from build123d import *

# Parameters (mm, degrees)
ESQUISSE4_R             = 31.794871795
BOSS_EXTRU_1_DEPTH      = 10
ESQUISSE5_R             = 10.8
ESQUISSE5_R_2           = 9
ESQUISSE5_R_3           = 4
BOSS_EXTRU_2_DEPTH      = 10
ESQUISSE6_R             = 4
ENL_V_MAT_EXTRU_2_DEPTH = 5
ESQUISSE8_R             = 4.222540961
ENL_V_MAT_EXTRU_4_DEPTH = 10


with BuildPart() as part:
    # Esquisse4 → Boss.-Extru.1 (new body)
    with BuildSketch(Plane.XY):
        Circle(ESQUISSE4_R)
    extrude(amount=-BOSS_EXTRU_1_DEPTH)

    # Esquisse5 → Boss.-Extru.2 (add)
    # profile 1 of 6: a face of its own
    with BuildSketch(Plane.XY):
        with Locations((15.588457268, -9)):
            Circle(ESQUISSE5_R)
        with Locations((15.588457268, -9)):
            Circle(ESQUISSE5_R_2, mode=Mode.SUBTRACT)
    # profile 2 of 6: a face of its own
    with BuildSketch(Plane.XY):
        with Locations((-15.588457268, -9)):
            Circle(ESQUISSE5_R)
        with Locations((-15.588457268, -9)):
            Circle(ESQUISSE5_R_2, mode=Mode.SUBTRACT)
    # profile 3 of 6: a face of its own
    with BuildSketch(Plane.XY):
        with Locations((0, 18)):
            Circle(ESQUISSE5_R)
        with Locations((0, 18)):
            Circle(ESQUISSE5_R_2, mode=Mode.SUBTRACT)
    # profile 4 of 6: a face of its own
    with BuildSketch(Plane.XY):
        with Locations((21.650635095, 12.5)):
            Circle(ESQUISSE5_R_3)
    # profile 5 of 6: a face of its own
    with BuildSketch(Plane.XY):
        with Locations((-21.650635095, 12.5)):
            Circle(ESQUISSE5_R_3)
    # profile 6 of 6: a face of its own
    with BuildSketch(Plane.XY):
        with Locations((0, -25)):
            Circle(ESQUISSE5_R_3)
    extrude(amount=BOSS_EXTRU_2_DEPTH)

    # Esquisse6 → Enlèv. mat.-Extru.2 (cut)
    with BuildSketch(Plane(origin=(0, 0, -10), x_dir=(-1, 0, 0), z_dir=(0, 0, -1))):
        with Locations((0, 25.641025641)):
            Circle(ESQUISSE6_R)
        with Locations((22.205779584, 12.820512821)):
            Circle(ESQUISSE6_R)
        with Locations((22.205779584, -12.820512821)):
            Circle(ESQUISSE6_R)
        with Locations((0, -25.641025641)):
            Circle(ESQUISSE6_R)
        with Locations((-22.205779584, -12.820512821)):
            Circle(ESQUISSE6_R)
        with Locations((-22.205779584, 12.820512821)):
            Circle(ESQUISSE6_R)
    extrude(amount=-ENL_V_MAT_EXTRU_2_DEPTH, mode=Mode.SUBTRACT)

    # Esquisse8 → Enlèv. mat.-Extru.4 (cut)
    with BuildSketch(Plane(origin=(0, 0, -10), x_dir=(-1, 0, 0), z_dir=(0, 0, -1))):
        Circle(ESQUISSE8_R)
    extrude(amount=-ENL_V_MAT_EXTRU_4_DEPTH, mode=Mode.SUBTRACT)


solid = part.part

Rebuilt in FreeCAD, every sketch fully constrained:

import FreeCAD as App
import Part
import Sketcher
from FreeCAD import Vector

doc = App.newDocument("Part")
body = doc.addObject("PartDesign::Body", "Body")

# Sketch on XY plane
sketch1 = doc.addObject("Sketcher::SketchObject", "Sketch")
body.addObject(sketch1)
sketch1.AttachmentSupport = (doc.XY_Plane, [""])
sketch1.MapMode = "FlatFace"
sketch1.addGeometry(Part.Circle(Vector(0, 0, 0), Vector(0, 0, 1), 32), False)
sketch1.addConstraint([
    Sketcher.Constraint("Coincident", 0, 3, -1, 1),
    Sketcher.Constraint("Diameter", 0, 63.589744),
])
pad1 = doc.addObject("PartDesign::Pad", "Pad")
body.addObject(pad1)
pad1.Profile = sketch1
pad1.Length = 10
pad1.Reversed = True

# Sketch on XY plane
sketch2 = doc.addObject("Sketcher::SketchObject", "Sketch001")
body.addObject(sketch2)
sketch2.AttachmentSupport = (doc.XY_Plane, [""])
sketch2.MapMode = "FlatFace"
sketch2.addGeometry([
    Part.Circle(Vector(15.6, -9, 0), Vector(0, 0, 1), 10.8),  # 0
    Part.Circle(Vector(15.6, -9, 0), Vector(0, 0, 1), 9),  # 1
    Part.Circle(Vector(-15.6, -9, 0), Vector(0, 0, 1), 10.8),  # 2
    Part.Circle(Vector(-15.6, -9, 0), Vector(0, 0, 1), 9),  # 3
    Part.Circle(Vector(0, 18, 0), Vector(0, 0, 1), 10.8),  # 4
    Part.Circle(Vector(0, 18, 0), Vector(0, 0, 1), 9),  # 5
    Part.Circle(Vector(21.7, 12.5, 0), Vector(0, 0, 1), 4),  # 6
    Part.Circle(Vector(-21.7, 12.5, 0), Vector(0, 0, 1), 4),  # 7
    Part.Circle(Vector(0, -25, 0), Vector(0, 0, 1), 4),  # 8
], False)
sketch2.addConstraint([
    Sketcher.Constraint("Coincident", 1, 3, 0, 3),
    Sketcher.Constraint("Coincident", 3, 3, 2, 3),
    Sketcher.Constraint("Coincident", 5, 3, 4, 3),
    Sketcher.Constraint("Equal", 0, 2),
    Sketcher.Constraint("Equal", 1, 3),
    Sketcher.Constraint("Equal", 2, 4),
    Sketcher.Constraint("Equal", 3, 5),
    Sketcher.Constraint("Equal", 6, 7),
    Sketcher.Constraint("Equal", 7, 8),
    Sketcher.Constraint("Symmetric", 0, 3, 2, 3, -2),
    Sketcher.Constraint("Symmetric", 6, 3, 7, 3, -2),
    Sketcher.Constraint("PointOnObject", 4, 3, -2),
    Sketcher.Constraint("PointOnObject", 8, 3, -2),
    Sketcher.Constraint("Diameter", 1, 18.0),
    Sketcher.Constraint("Diameter", 6, 8.0),
    Sketcher.Constraint("Diameter", 0, 21.6),
    Sketcher.Constraint("DistanceY", 0, 3, -1, 1, 9.0),
    Sketcher.Constraint("DistanceY", -1, 1, 4, 3, 18.0),
    Sketcher.Constraint("DistanceY", 8, 3, -1, 1, 25.0),
    Sketcher.Constraint("DistanceY", -1, 1, 6, 3, 12.5),
    Sketcher.Constraint("DistanceX", -1, 1, 0, 3, 15.588457),
    Sketcher.Constraint("DistanceX", -1, 1, 6, 3, 21.650635),
])
pad2 = doc.addObject("PartDesign::Pad", "Pad001")
body.addObject(pad2)
pad2.Profile = sketch2
pad2.Length = 10

# Sketch on XY plane
sketch3 = doc.addObject("Sketcher::SketchObject", "Sketch002")
body.addObject(sketch3)
sketch3.AttachmentSupport = (doc.XY_Plane, [""])
sketch3.MapMode = "FlatFace"
sketch3.AttachmentOffset = App.Placement(Vector(0, 0, -10), App.Rotation())
sketch3.addGeometry([
    Part.Circle(Vector(0, 25.6, 0), Vector(0, 0, 1), 4),  # 0
    Part.Circle(Vector(-22.2, 12.8, 0), Vector(0, 0, 1), 4),  # 1
    Part.Circle(Vector(-22.2, -12.8, 0), Vector(0, 0, 1), 4),  # 2
    Part.Circle(Vector(0, -25.6, 0), Vector(0, 0, 1), 4),  # 3
    Part.Circle(Vector(22.2, -12.8, 0), Vector(0, 0, 1), 4),  # 4
    Part.Circle(Vector(22.2, 12.8, 0), Vector(0, 0, 1), 4),  # 5
], False)
sketch3.addConstraint([
    Sketcher.Constraint("Equal", 0, 1),
    Sketcher.Constraint("Equal", 1, 2),
    Sketcher.Constraint("Equal", 2, 3),
    Sketcher.Constraint("Equal", 3, 4),
    Sketcher.Constraint("Equal", 4, 5),
    Sketcher.Constraint("Symmetric", 0, 3, 3, 3, -1, 1),
    Sketcher.Constraint("Symmetric", 1, 3, 4, 3, -1, 1),
    Sketcher.Constraint("Symmetric", 2, 3, 5, 3, -1, 1),
    Sketcher.Constraint("Symmetric", 2, 3, 4, 3, -2),
    Sketcher.Constraint("PointOnObject", 0, 3, -2),
    Sketcher.Constraint("Diameter", 0, 8.0),
    Sketcher.Constraint("DistanceX", 1, 3, -1, 1, 22.20578),
    Sketcher.Constraint("DistanceY", 2, 3, 0, 3, 38.461538),
    Sketcher.Constraint("DistanceY", 3, 3, 0, 3, 51.282051),
])
pocket1 = doc.addObject("PartDesign::Pocket", "Pocket")
body.addObject(pocket1)
pocket1.Profile = sketch3
pocket1.Length = 5
pocket1.Reversed = True

# Sketch on XY plane
sketch4 = doc.addObject("Sketcher::SketchObject", "Sketch003")
body.addObject(sketch4)
sketch4.AttachmentSupport = (doc.XY_Plane, [""])
sketch4.MapMode = "FlatFace"
sketch4.AttachmentOffset = App.Placement(Vector(0, 0, -10), App.Rotation())
sketch4.addGeometry(Part.Circle(Vector(0, 0, 0), Vector(0, 0, 1), 4.2), False)
sketch4.addConstraint([
    Sketcher.Constraint("Coincident", 0, 3, -1, 1),
    Sketcher.Constraint("Diameter", 0, 8.445082),
])
pocket2 = doc.addObject("PartDesign::Pocket", "Pocket001")
body.addObject(pocket2)
pocket2.Profile = sketch4
pocket2.Length = 10
pocket2.Reversed = True

doc.recompute()
